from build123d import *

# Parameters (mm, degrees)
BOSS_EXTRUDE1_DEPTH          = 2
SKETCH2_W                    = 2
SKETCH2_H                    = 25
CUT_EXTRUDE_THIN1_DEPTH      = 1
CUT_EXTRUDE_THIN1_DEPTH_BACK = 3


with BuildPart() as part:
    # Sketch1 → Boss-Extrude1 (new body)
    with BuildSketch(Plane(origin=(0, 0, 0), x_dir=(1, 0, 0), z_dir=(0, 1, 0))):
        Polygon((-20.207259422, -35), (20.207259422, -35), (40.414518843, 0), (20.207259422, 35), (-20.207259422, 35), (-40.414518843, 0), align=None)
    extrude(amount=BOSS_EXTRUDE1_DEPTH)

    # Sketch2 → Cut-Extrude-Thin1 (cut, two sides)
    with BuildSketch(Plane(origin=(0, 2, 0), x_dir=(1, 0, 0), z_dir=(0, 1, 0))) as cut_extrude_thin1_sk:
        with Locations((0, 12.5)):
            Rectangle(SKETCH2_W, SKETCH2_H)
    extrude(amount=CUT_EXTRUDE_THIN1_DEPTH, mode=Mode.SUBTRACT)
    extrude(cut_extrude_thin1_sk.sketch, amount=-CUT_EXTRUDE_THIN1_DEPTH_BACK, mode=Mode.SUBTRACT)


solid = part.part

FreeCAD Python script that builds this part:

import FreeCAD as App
import Part
import Sketcher
Q = App.Units.Quantity


def add_polygon(sketch, points):
    """Adds a closed chain of lines whose ends are joined by coincident constraints."""
    first, n = sketch.GeometryCount, len(points)
    for a, b in zip(points, points[1:] + points[:1]):
        sketch.addGeometry(Part.LineSegment(App.Vector(*a, 0), App.Vector(*b, 0)), False)
    for i in range(n):
        sketch.addConstraint(Sketcher.Constraint("Coincident", first + i, 2, first + (i + 1) % n, 1))

doc = App.newDocument("Part")
body = doc.addObject("PartDesign::Body", "Body")

# Sketch on XZ plane
sketch1 = doc.addObject("Sketcher::SketchObject", "Sketch")
body.addObject(sketch1)
sketch1.AttachmentSupport = (doc.XZ_Plane, [""])
sketch1.MapMode = "FlatFace"
add_polygon(sketch1, [(-20, 35), (20, 35), (40, 0), (20, -35), (-20, -35), (-40, 0)])  # lines 0-5
sketch1.addConstraint(Sketcher.Constraint("Horizontal", 0))
sketch1.addConstraint(Sketcher.Constraint("Horizontal", 3))
sketch1.addConstraint(Sketcher.Constraint("Symmetric", 0, 2, 3, 2, -1, 1))
sketch1.addConstraint(Sketcher.Constraint("Symmetric", 1, 2, 4, 2, -1, 1))
sketch1.addConstraint(Sketcher.Constraint("PointOnObject", 1, 2, -1))
sketch1.addConstraint(Sketcher.Constraint("Parallel", 2, 5))
sketch1.addConstraint(Sketcher.Constraint("Vertical", 0, 2, 2, 2))
sketch1.addConstraint(Sketcher.Constraint("Angle", 1, Q("-60 deg")))
sketch1.addConstraint(Sketcher.Constraint("DistanceY", -1, 1, 0, 2, Q("35 mm")))
sketch1.addConstraint(Sketcher.Constraint("DistanceX", 0, 1, 0, 2, Q("40.414519 mm")))
pad1 = doc.addObject("PartDesign::Pad", "Pad")
body.addObject(pad1)
pad1.Profile = sketch1
pad1.Length = 2
pad1.Reversed = True

# Sketch on XZ plane
sketch2 = doc.addObject("Sketcher::SketchObject", "Sketch001")
body.addObject(sketch2)
sketch2.AttachmentSupport = (doc.XZ_Plane, [""])
sketch2.MapMode = "FlatFace"
sketch2.AttachmentOffset = App.Placement(App.Vector(0, 0, -2), App.Rotation())
add_polygon(sketch2, [(-1, -25), (-1, 0), (1, 0), (1, -25)])  # lines 0-3
sketch2.addConstraint(Sketcher.Constraint("Vertical", 0))
sketch2.addConstraint(Sketcher.Constraint("Horizontal", 1))
sketch2.addConstraint(Sketcher.Constraint("Vertical", 2))
sketch2.addConstraint(Sketcher.Constraint("Horizontal", 3))
sketch2.addConstraint(Sketcher.Constraint("Symmetric", 0, 2, 1, 2, -1, 1))
sketch2.addConstraint(Sketcher.Constraint("DistanceX", 1, 1, 1, 2, Q("2 mm")))
sketch2.addConstraint(Sketcher.Constraint("DistanceY", 0, 1, 0, 2, Q("25 mm")))
pocket1 = doc.addObject("PartDesign::Pocket", "Pocket")
body.addObject(pocket1)
pocket1.Profile = sketch2
pocket1.Type = "ThroughAll"
pocket1.Midplane = True

doc.recompute()
